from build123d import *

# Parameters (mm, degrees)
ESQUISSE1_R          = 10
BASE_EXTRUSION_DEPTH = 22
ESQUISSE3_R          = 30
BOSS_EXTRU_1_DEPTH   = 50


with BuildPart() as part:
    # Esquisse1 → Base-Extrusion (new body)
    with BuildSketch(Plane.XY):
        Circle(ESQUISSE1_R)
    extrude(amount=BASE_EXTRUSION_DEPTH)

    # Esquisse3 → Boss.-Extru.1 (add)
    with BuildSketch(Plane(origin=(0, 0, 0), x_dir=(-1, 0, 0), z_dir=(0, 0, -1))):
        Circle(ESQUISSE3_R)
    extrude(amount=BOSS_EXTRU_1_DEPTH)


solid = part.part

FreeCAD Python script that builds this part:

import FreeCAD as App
import Part
import Sketcher
from FreeCAD import Vector
Q = App.Units.Quantity

doc = App.newDocument("Part")
body = doc.addObject("PartDesign::Body", "Body")

sketch1 = doc.addObject("Sketcher::SketchObject", "Sketch")
body.addObject(sketch1)
sketch1.AttachmentSupport = (doc.XY_Plane, [""])
sketch1.MapMode = "FlatFace"
sketch1.addGeometry(Part.Circle(Vector(0, 0, 0), Vector(0, 0, 1), 10), False)
sketch1.addConstraint(Sketcher.Constraint("Coincident", 0, 3, -1, 1))
sketch1.addConstraint(Sketcher.Constraint("Diameter", 0, Q("20 mm")))
pad1 = doc.addObject("PartDesign::Pad", "Pad")
body.addObject(pad1)
pad1.Profile = sketch1
pad1.Length = 22

sketch2 = doc.addObject("Sketcher::SketchObject", "Sketch001")
body.addObject(sketch2)
sketch2.AttachmentSupport = (doc.XY_Plane, [""])
sketch2.MapMode = "FlatFace"
sketch2.addGeometry(Part.Circle(Vector(0, 0, 0), Vector(0, 0, 1), 30), False)
sketch2.addConstraint(Sketcher.Constraint("Coincident", 0, 3, -1, 1))
sketch2.addConstraint(Sketcher.Constraint("Diameter", 0, Q("60 mm")))
pad2 = doc.addObject("PartDesign::Pad", "Pad001")
body.addObject(pad2)
pad2.Profile = sketch2
pad2.Length = 50
pad2.Reversed = True

doc.recompute()
